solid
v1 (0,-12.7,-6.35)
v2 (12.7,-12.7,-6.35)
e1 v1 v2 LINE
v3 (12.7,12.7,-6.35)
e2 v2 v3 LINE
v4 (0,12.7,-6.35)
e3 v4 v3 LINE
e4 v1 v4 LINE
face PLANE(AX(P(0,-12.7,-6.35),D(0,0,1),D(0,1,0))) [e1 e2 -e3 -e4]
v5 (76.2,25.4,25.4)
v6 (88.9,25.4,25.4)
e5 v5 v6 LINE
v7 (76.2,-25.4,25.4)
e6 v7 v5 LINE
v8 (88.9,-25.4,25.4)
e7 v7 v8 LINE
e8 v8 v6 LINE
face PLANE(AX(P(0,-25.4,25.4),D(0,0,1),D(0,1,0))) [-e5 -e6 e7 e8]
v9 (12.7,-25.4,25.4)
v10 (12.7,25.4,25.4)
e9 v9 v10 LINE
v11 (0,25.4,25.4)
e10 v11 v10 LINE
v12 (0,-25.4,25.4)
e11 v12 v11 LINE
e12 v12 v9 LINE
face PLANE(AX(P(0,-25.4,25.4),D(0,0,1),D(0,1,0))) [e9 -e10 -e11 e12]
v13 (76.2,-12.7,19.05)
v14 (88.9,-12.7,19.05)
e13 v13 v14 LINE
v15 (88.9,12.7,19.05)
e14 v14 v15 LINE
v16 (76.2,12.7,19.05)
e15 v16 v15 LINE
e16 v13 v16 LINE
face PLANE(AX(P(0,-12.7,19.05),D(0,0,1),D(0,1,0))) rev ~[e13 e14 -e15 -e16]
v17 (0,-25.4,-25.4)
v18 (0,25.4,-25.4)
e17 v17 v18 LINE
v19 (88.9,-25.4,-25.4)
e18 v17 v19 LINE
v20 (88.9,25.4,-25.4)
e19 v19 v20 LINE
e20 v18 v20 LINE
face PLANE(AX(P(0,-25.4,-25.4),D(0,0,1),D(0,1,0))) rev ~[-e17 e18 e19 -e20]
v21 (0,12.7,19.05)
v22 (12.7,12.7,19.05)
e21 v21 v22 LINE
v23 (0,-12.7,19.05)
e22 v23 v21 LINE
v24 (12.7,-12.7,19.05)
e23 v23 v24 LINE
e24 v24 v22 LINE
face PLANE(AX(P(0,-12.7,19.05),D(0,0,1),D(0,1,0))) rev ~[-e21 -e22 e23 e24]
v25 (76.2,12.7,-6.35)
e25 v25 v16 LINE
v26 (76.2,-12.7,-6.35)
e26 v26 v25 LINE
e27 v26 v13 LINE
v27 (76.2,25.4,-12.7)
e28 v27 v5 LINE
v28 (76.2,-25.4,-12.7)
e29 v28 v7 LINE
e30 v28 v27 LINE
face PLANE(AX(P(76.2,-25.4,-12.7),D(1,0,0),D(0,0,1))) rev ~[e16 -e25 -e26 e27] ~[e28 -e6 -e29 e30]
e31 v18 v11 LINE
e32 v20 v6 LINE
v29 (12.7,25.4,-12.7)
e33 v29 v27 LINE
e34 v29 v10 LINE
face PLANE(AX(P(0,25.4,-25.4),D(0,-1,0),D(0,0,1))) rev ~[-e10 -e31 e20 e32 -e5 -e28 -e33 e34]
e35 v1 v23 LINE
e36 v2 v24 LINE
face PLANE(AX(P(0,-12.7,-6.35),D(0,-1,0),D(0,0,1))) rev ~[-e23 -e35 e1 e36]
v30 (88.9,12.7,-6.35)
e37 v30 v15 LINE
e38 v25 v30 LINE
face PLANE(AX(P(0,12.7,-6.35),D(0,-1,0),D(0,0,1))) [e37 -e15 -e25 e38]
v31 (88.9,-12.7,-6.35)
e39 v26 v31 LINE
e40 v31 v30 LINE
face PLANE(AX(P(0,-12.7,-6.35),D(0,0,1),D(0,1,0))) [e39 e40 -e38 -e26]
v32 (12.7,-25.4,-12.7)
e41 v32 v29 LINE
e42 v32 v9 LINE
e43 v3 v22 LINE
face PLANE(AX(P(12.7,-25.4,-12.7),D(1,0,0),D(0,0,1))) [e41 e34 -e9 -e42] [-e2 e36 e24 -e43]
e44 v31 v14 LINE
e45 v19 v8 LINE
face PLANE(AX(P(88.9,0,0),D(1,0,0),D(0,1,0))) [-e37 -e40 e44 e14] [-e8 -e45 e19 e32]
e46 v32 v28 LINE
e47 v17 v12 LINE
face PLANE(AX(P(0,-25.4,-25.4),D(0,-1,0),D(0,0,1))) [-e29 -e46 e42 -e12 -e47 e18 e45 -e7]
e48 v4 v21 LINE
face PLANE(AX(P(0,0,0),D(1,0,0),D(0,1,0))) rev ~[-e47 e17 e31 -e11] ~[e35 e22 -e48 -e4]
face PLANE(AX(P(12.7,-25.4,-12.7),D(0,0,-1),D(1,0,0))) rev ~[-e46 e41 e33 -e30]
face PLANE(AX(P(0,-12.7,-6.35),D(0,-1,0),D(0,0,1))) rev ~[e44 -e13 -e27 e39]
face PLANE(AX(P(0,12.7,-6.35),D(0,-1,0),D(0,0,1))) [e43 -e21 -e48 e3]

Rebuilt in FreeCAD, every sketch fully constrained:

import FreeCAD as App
import Part
import Sketcher

V = App.Vector
Q = App.Units.Quantity


def add_polygon(sketch, points):
    """Adds a closed chain of lines whose ends are joined by coincident constraints."""
    first, n = sketch.GeometryCount, len(points)
    for a, b in zip(points, points[1:] + points[:1]):
        sketch.addGeometry(Part.LineSegment(App.Vector(*a, 0), App.Vector(*b, 0)), False)
    for i in range(n):
        sketch.addConstraint(Sketcher.Constraint("Coincident", first + i, 2, first + (i + 1) % n, 1))

doc = App.newDocument("Part")
body = doc.addObject("PartDesign::Body", "Body")

# Sketch on YZ plane
sketch1 = body.newObject("Sketcher::SketchObject", "Sketch")
sketch1.AttachmentSupport = (doc.getObject("YZ_Plane"), [""])
sketch1.MapMode = "FlatFace"
add_polygon(sketch1, [(-25, 25), (-25, -25), (25, -25), (25, 25)])  # lines 0-3
add_polygon(sketch1, [(13, -6), (-13, -6), (-13, 19), (13, 19)])  # lines 4-7
sketch1.addConstraint([
    Sketcher.Constraint("Vertical", 0),
    Sketcher.Constraint("Horizontal", 1),
    Sketcher.Constraint("Vertical", 2),
    Sketcher.Constraint("Horizontal", 3),
    Sketcher.Constraint("Horizontal", 4),
    Sketcher.Constraint("Vertical", 5),
    Sketcher.Constraint("Horizontal", 6),
    Sketcher.Constraint("Vertical", 7),
    Sketcher.Constraint("Symmetric", 0, 2, 2, 2, -1, 1),
    Sketcher.Constraint("Equal", 3, 0),
    Sketcher.Constraint("Equal", 6, 5),
    Sketcher.Constraint("DistanceX", 1, 1, 1, 2, Q("2 in")),
    Sketcher.Constraint("DistanceX", 4, 2, 4, 1, Q("1 in")),
    Sketcher.Constraint("DistanceX", 4, 2, -1, 1, Q("0.5 in")),
    Sketcher.Constraint("DistanceY", 4, 2, -1, 1, Q("0.25 in")),
])
pad1 = body.newObject("PartDesign::Pad", "Pad")
pad1.Profile = sketch1
pad1.Length = Q("3.5 in")

# Sketch on XZ plane
sketch2 = body.newObject("Sketcher::SketchObject", "Sketch001")
sketch2.AttachmentSupport = (doc.getObject("XZ_Plane"), [""])
sketch2.MapMode = "FlatFace"
sketch2.AttachmentOffset = App.Placement(V(0, 0, 1 * 25.4), App.Rotation())
add_polygon(sketch2, [(13, 25), (13, -13), (76, -13), (76, 25)])  # lines 0-3
sketch2.addConstraint([
    Sketcher.Constraint("Vertical", 0),
    Sketcher.Constraint("Horizontal", 1),
    Sketcher.Constraint("Vertical", 2),
    Sketcher.Constraint("Horizontal", 3),
    Sketcher.Constraint("DistanceX", 1, 1, 1, 2, Q("2.5 in")),
    Sketcher.Constraint("DistanceY", 0, 2, 0, 1, Q("1.5 in")),
    Sketcher.Constraint("DistanceX", -1, 1, 1, 2, Q("3 in")),
    Sketcher.Constraint("DistanceY", -1, 1, 2, 2, Q("1 in")),
])
pocket1 = body.newObject("PartDesign::Pocket", "Pocket")
pocket1.Profile = sketch2
pocket1.Length = Q("2 in")

doc.recompute()
